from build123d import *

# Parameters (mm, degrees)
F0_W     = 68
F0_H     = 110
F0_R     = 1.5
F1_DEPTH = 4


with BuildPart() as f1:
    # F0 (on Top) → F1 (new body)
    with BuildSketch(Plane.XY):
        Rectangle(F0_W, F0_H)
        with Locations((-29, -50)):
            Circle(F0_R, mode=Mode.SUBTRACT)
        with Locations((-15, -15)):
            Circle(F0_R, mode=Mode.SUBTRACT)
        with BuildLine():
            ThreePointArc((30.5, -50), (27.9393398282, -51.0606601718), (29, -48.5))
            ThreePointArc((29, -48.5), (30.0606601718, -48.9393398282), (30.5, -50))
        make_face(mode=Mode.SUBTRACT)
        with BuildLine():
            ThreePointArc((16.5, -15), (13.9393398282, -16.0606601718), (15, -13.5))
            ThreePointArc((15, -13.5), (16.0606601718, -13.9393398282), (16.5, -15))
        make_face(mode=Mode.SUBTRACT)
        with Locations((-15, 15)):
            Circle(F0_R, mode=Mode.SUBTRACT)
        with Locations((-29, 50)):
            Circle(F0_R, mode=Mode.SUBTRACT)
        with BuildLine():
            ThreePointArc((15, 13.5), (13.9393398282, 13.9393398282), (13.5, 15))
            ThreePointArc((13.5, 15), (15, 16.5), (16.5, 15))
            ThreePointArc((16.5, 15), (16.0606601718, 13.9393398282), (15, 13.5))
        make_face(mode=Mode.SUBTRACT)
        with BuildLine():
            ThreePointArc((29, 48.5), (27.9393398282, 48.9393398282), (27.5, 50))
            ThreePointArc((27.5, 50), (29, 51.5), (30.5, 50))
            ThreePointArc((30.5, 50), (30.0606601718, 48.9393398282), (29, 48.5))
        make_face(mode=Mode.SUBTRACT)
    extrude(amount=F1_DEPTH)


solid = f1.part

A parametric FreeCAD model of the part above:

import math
import FreeCAD as App
import Part
import Sketcher

V = App.Vector
Q = App.Units.Quantity

doc = App.newDocument("Part")
body = doc.addObject("PartDesign::Body", "Body")

# Sketch on XY plane
sketch1 = body.newObject("Sketcher::SketchObject", "Sketch")
sketch1.AttachmentSupport = (doc.getObject("XY_Plane"), [""])
sketch1.MapMode = "FlatFace"
sketch1.addGeometry([
    Part.LineSegment(V(-34, 55, 0), V(-34, -55, 0)),  # 0
    Part.LineSegment(V(-34, -55, 0), V(34, -55, 0)),  # 1
    Part.LineSegment(V(34, -55, 0), V(34, 55, 0)),  # 2
    Part.LineSegment(V(34, 55, 0), V(-34, 55, 0)),  # 3
    Part.Circle(V(-29, -50, 0), V(0, 0, 1), 1.5),  # 4
    Part.Circle(V(-15, -15, 0), V(0, 0, 1), 1.5),  # 5
    Part.ArcOfCircle(Part.Circle(V(29, -50, 0), V(0, 0, 1), 1.5), math.radians(0), math.radians(90)),  # 6
    Part.ArcOfCircle(Part.Circle(V(29, -50, 0), V(0, 0, 1), 1.5), math.radians(90), math.radians(360)),  # 7
    Part.ArcOfCircle(Part.Circle(V(15, -15, 0), V(0, 0, 1), 1.5), math.radians(0), math.radians(90)),  # 8
    Part.ArcOfCircle(Part.Circle(V(15, -15, 0), V(0, 0, 1), 1.5), math.radians(90), math.radians(360)),  # 9
    Part.Circle(V(-15, 15, 0), V(0, 0, 1), 1.5),  # 10
    Part.Circle(V(-29, 50, 0), V(0, 0, 1), 1.5),  # 11
    Part.ArcOfCircle(Part.Circle(V(15, 15, 0), V(0, 0, 1), 1.5), math.radians(-90), math.radians(0)),  # 12
    Part.ArcOfCircle(Part.Circle(V(15, 15, 0), V(0, 0, 1), 1.5), math.radians(180), math.radians(270)),  # 13
    Part.ArcOfCircle(Part.Circle(V(15, 15, 0), V(0, 0, 1), 1.5), math.radians(0), math.radians(180)),  # 14
    Part.ArcOfCircle(Part.Circle(V(29, 50, 0), V(0, 0, 1), 1.5), math.radians(-90), math.radians(0)),  # 15
    Part.ArcOfCircle(Part.Circle(V(29, 50, 0), V(0, 0, 1), 1.5), math.radians(180), math.radians(270)),  # 16
    Part.ArcOfCircle(Part.Circle(V(29, 50, 0), V(0, 0, 1), 1.5), math.radians(0), math.radians(180)),  # 17
], False)
sketch1.addConstraint([
    Sketcher.Constraint("Coincident", 0, 2, 1, 1),
    Sketcher.Constraint("Coincident", 1, 2, 2, 1),
    Sketcher.Constraint("Coincident", 2, 2, 3, 1),
    Sketcher.Constraint("Coincident", 3, 2, 0, 1),
    Sketcher.Constraint("Tangent", 6, 1, 7, 2),
    Sketcher.Constraint("Coincident", 7, 1, 6, 2),
    Sketcher.Constraint("Tangent", 8, 1, 9, 2),
    Sketcher.Constraint("Coincident", 9, 1, 8, 2),
    Sketcher.Constraint("Tangent", 12, 1, 13, 2),
    Sketcher.Constraint("Tangent", 13, 1, 14, 2),
    Sketcher.Constraint("Tangent", 14, 1, 12, 2),
    Sketcher.Constraint("Tangent", 15, 1, 16, 2),
    Sketcher.Constraint("Tangent", 16, 1, 17, 2),
    Sketcher.Constraint("Tangent", 17, 1, 15, 2),
    Sketcher.Constraint("Vertical", 0),
    Sketcher.Constraint("Horizontal", 1),
    Sketcher.Constraint("Vertical", 2),
    Sketcher.Constraint("Horizontal", 3),
    Sketcher.Constraint("Equal", 4, 5),
    Sketcher.Constraint("Equal", 5, 6),
    Sketcher.Constraint("Equal", 7, 8),
    Sketcher.Constraint("Equal", 9, 10),
    Sketcher.Constraint("Equal", 10, 11),
    Sketcher.Constraint("Equal", 11, 12),
    Sketcher.Constraint("Equal", 14, 15),
    Sketcher.Constraint("Symmetric", 8, 3, 10, 3, -1, 1),
    Sketcher.Constraint("Symmetric", 6, 3, 11, 3, -1, 1),
    Sketcher.Constraint("Symmetric", 5, 3, 12, 3, -1, 1),
    Sketcher.Constraint("Symmetric", 4, 3, 15, 3, -1, 1),
    Sketcher.Constraint("Symmetric", 0, 2, 2, 2, -1, 1),
    Sketcher.Constraint("Symmetric", 4, 3, 6, 3, -2),
    Sketcher.Constraint("Symmetric", 5, 3, 8, 3, -2),
    Sketcher.Constraint("Horizontal", 7, 3, 6, 1),
    Sketcher.Constraint("Horizontal", 9, 3, 8, 1),
    Sketcher.Constraint("Horizontal", 14, 3, 13, 1),
    Sketcher.Constraint("Horizontal", 13, 1, 14, 1),
    Sketcher.Constraint("Horizontal", 17, 3, 16, 1),
    Sketcher.Constraint("Horizontal", 16, 1, 17, 1),
    Sketcher.Constraint("Vertical", 17, 3, 7, 1),
    Sketcher.Constraint("Vertical", 14, 3, 9, 1),
    Sketcher.Constraint("Vertical", 9, 1, 12, 1),
    Sketcher.Constraint("Vertical", 7, 1, 15, 1),
    Sketcher.Constraint("Diameter", 4, Q("3 mm")),
    Sketcher.Constraint("DistanceX", 1, 1, 1, 2, Q("68 mm")),
    Sketcher.Constraint("DistanceY", 0, 2, 0, 1, Q("110 mm")),
    Sketcher.Constraint("DistanceX", 4, 3, -1, 1, Q("29 mm")),
    Sketcher.Constraint("DistanceY", 4, 3, -1, 1, Q("50 mm")),
    Sketcher.Constraint("DistanceX", 5, 3, -1, 1, Q("15 mm")),
    Sketcher.Constraint("DistanceY", 5, 3, -1, 1, Q("15 mm")),
])
pad1 = body.newObject("PartDesign::Pad", "Pad")
pad1.Profile = sketch1
pad1.Length = 4

doc.recompute()
